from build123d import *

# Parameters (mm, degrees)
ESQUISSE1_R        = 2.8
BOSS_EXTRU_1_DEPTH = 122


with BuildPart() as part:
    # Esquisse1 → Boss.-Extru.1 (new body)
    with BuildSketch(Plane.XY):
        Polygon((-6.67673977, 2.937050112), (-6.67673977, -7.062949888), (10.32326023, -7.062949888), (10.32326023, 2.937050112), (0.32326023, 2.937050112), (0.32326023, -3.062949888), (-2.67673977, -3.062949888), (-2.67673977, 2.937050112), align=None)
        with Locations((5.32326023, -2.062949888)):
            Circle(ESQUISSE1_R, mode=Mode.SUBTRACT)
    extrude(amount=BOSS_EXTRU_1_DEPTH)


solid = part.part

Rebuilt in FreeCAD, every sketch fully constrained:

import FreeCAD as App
import Part
import Sketcher
Q = App.Units.Quantity

doc = App.newDocument("Part")
params = doc.addObject("Spreadsheet::Sheet", "Params")
for row, (alias, value) in enumerate([
    ("sketch1_diameter", "5.6 mm"),
    ("sketch1_width", "17 mm"),
    ("sketch1_width2", "10 mm"),
    ("sketch1_width3", "3 mm"),
    ("sketch1_height", "6 mm"),
    ("pad1_length", "122 mm"),
], start=1):
    params.set(f"A{row}", alias)
    params.set(f"B{row}", "=" + value)
    params.setAlias(f"B{row}", alias)

body = doc.addObject("PartDesign::Body", "Body")

# Sketch on XY plane
sketch1 = body.newObject("Sketcher::SketchObject", "Sketch")
sketch1.AttachmentSupport = (doc.getObject("XY_Plane"), [""])
sketch1.MapMode = "FlatFace"
sketch1.addGeometry([
    Part.LineSegment(App.Vector(-6.7, 2.9, 0), App.Vector(-6.7, -7.1, 0)),  # 0
    Part.LineSegment(App.Vector(-6.7, -7.1, 0), App.Vector(10.3, -7.1, 0)),  # 1
    Part.LineSegment(App.Vector(10.3, -7.1, 0), App.Vector(10.3, 2.9, 0)),  # 2
    Part.LineSegment(App.Vector(10.3, 2.9, 0), App.Vector(0.3, 2.9, 0)),  # 3
    Part.LineSegment(App.Vector(0.3, 2.9, 0), App.Vector(0.3, -3.1, 0)),  # 4
    Part.LineSegment(App.Vector(0.3, -3.1, 0), App.Vector(-2.7, -3.1, 0)),  # 5
    Part.LineSegment(App.Vector(-2.7, -3.1, 0), App.Vector(-2.7, 2.9, 0)),  # 6
    Part.LineSegment(App.Vector(-2.7, 2.9, 0), App.Vector(-6.7, 2.9, 0)),  # 7
    Part.Circle(App.Vector(5.3, -2.1, 0), App.Vector(0, 0, 1), 2.8),  # 8
], False)
sketch1.addConstraint([
    Sketcher.Constraint("Coincident", 0, 2, 1, 1),
    Sketcher.Constraint("Coincident", 1, 2, 2, 1),
    Sketcher.Constraint("Coincident", 2, 2, 3, 1),
    Sketcher.Constraint("Coincident", 3, 2, 4, 1),
    Sketcher.Constraint("Coincident", 4, 2, 5, 1),
    Sketcher.Constraint("Coincident", 5, 2, 6, 1),
    Sketcher.Constraint("Coincident", 6, 2, 7, 1),
    Sketcher.Constraint("Coincident", 7, 2, 0, 1),
    Sketcher.Constraint("Vertical", 0),
    Sketcher.Constraint("Horizontal", 1),
    Sketcher.Constraint("Vertical", 2),
    Sketcher.Constraint("Horizontal", 3),
    Sketcher.Constraint("Vertical", 4),
    Sketcher.Constraint("Horizontal", 5),
    Sketcher.Constraint("Vertical", 6),
    Sketcher.Constraint("Horizontal", 7),
    Sketcher.Constraint("Horizontal", 3, 2, 6, 2),
    Sketcher.Constraint("Equal", 3, 0),
    Sketcher.Constraint("Diameter", 8, Q("5.6 mm")),
    Sketcher.Constraint("DistanceX", 1, 1, 1, 2, Q("17 mm")),
    Sketcher.Constraint("DistanceX", 3, 2, 3, 1, Q("10 mm")),
    Sketcher.Constraint("DistanceX", 5, 2, 5, 1, Q("3 mm")),
    Sketcher.Constraint("DistanceY", 4, 2, 4, 1, Q("6 mm")),
    Sketcher.Constraint("DistanceX", 0, 2, 8, 3, Q("12 mm")),
    Sketcher.Constraint("DistanceY", 0, 2, 8, 3, Q("5 mm")),
    Sketcher.Constraint("DistanceX", -1, 1, 8, 3, Q("5.32326 mm")),
    Sketcher.Constraint("DistanceY", 8, 3, -1, 1, Q("2.06295 mm")),
])
sketch1.setExpression("Constraints[18]", "Params.sketch1_diameter")
sketch1.setExpression("Constraints[19]", "Params.sketch1_width")
sketch1.setExpression("Constraints[20]", "Params.sketch1_width2")
sketch1.setExpression("Constraints[21]", "Params.sketch1_width3")
sketch1.setExpression("Constraints[22]", "Params.sketch1_height")
pad1 = body.newObject("PartDesign::Pad", "Pad")
pad1.Profile = sketch1
pad1.setExpression("Length", "Params.pad1_length")

doc.recompute()
